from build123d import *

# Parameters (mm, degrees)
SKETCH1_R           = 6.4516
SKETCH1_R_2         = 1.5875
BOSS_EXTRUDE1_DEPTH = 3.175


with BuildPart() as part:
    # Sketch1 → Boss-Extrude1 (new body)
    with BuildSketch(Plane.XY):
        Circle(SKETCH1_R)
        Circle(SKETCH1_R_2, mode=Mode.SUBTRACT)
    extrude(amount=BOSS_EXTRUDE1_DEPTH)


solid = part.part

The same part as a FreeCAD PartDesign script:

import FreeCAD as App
import Part
import Sketcher
Q = App.Units.Quantity

doc = App.newDocument("Part")
body = doc.addObject("PartDesign::Body", "Body")

# Sketch on XY plane
sketch1 = body.newObject("Sketcher::SketchObject", "Sketch")
sketch1.AttachmentSupport = (doc.getObject("XY_Plane"), [""])
sketch1.MapMode = "FlatFace"
sketch1.addGeometry([
    Part.Circle(App.Vector(0, 0, 0), App.Vector(0, 0, 1), 6.5),
    Part.Circle(App.Vector(0, 0, 0), App.Vector(0, 0, 1), 1.6),
], False)
sketch1.addConstraint([
    Sketcher.Constraint("Coincident", 0, 3, -1, 1),
    Sketcher.Constraint("Coincident", 1, 3, -1, 1),
    Sketcher.Constraint("Diameter", 0, Q("0.508 in")),
    Sketcher.Constraint("Diameter", 1, Q("0.125 in")),
])
pad1 = body.newObject("PartDesign::Pad", "Pad")
pad1.Profile = sketch1
pad1.Length = Q("0.125 in")

doc.recompute()
